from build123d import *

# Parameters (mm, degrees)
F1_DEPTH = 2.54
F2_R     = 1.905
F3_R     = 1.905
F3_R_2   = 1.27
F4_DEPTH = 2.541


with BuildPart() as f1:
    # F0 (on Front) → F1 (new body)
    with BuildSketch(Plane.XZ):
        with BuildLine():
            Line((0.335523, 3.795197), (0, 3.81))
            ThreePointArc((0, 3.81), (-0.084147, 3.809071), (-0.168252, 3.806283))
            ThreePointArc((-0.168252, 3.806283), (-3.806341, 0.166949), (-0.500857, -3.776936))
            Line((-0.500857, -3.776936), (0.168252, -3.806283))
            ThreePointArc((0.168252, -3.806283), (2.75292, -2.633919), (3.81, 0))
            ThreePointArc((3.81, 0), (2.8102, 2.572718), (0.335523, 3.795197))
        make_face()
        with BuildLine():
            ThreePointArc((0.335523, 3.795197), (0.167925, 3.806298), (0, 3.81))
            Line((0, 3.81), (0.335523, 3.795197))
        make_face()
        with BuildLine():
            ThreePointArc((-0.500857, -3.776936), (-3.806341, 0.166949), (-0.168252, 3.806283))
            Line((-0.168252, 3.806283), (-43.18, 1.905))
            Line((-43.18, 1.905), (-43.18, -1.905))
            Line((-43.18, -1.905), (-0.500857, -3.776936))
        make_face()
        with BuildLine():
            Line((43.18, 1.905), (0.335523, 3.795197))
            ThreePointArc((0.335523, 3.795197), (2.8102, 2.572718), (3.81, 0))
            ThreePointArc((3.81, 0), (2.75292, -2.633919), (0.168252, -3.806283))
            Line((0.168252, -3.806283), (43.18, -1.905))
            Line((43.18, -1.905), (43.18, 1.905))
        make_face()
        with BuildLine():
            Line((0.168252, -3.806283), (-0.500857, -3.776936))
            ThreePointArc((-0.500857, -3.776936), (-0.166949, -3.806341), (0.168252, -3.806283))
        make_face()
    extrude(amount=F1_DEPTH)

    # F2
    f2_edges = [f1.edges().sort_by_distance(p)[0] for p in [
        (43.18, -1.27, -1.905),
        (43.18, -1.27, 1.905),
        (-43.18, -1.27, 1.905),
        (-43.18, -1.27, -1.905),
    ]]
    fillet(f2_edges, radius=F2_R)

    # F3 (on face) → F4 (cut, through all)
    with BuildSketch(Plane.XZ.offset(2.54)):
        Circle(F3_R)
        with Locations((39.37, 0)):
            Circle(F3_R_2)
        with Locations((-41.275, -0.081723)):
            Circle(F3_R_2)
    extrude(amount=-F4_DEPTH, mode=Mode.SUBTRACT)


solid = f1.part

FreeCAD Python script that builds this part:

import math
import FreeCAD as App
import Part
import Sketcher
from FreeCAD import Vector
Q = App.Units.Quantity


def edges_at(feature, points):
    """Names of the edges that pass closest to the given points."""
    edges = feature.Shape.Edges
    near = lambda p: min(range(len(edges)), key=lambda i: edges[i].distToShape(Part.Vertex(*p))[0])
    return sorted({f"Edge{near(p) + 1}" for p in points})

doc = App.newDocument("Part")
params = doc.addObject("Spreadsheet::Sheet", "Params")
for row, (alias, value) in enumerate([
    ("sketch1_height", "0.15 in"),
    ("pad1_length", "0.1 in"),
    ("fillet_radius", "0.075 in"),
    ("sketch2_diameter", "0.1 in"),
    ("sketch2_diameter2", "0.15 in"),
], start=1):
    params.set(f"A{row}", alias)
    params.set(f"B{row}", "=" + value)
    params.setAlias(f"B{row}", alias)

body = doc.addObject("PartDesign::Body", "Body")

# Sketch on XZ plane
sketch1 = body.newObject("Sketcher::SketchObject", "Sketch")
sketch1.AttachmentSupport = (doc.getObject("XZ_Plane"), [""])
sketch1.MapMode = "FlatFace"
sketch1.addGeometry(Part.ArcOfCircle(Part.Circle(Vector(0, 0, 0), Vector(0, 0, 1), 3.81), math.radians(90), math.radians(92.53)), False)
sketch1.addGeometry(Part.LineSegment(Vector(-0.17, 3.81, 0), Vector(-43.18, 1.91, 0)), False)
sketch1.addGeometry(Part.LineSegment(Vector(-43.18, 1.91, 0), Vector(-43.18, -1.91, 0)), False)
sketch1.addGeometry(Part.LineSegment(Vector(-43.18, -1.91, 0), Vector(-0.5, -3.78, 0)), False)
sketch1.addGeometry(Part.ArcOfCircle(Part.Circle(Vector(0, 0, 0), Vector(0, 0, 1), 3.81), math.radians(-97.55), math.radians(-87.47)), False)
sketch1.addGeometry(Part.LineSegment(Vector(0.17, -3.81, 0), Vector(43.18, -1.91, 0)), False)
sketch1.addGeometry(Part.LineSegment(Vector(43.18, -1.91, 0), Vector(43.18, 1.91, 0)), False)
sketch1.addGeometry(Part.LineSegment(Vector(43.18, 1.91, 0), Vector(0.34, 3.8, 0)), False)
sketch1.addGeometry(Part.ArcOfCircle(Part.Circle(Vector(0, 0, 0), Vector(0, 0, 1), 3.81), math.radians(84.95), math.radians(90)), False)
sketch1.addConstraint(Sketcher.Constraint("Coincident", 0, 2, 1, 1))
sketch1.addConstraint(Sketcher.Constraint("Coincident", 1, 2, 2, 1))
sketch1.addConstraint(Sketcher.Constraint("Coincident", 2, 2, 3, 1))
sketch1.addConstraint(Sketcher.Constraint("Coincident", 3, 2, 4, 1))
sketch1.addConstraint(Sketcher.Constraint("Coincident", 4, 2, 5, 1))
sketch1.addConstraint(Sketcher.Constraint("Coincident", 5, 2, 6, 1))
sketch1.addConstraint(Sketcher.Constraint("Coincident", 6, 2, 7, 1))
sketch1.addConstraint(Sketcher.Constraint("Coincident", 7, 2, 8, 1))
sketch1.addConstraint(Sketcher.Constraint("Coincident", 8, 2, 0, 1))
sketch1.addConstraint(Sketcher.Constraint("Vertical", 2))
sketch1.addConstraint(Sketcher.Constraint("Vertical", 6))
sketch1.addConstraint(Sketcher.Constraint("Symmetric", 0, 2, 4, 2, -1, 1))
sketch1.addConstraint(Sketcher.Constraint("Symmetric", 1, 2, 5, 2, -1, 1))
sketch1.addConstraint(Sketcher.Constraint("PointOnObject", 8, 2, -2))
sketch1.addConstraint(Sketcher.Constraint("Horizontal", 2, 2, 5, 2))
sketch1.addConstraint(Sketcher.Constraint("Horizontal", 1, 2, 6, 2))
sketch1.addConstraint(Sketcher.Constraint("DistanceY", 2, 2, 2, 1, Q("0.15 in")))
sketch1.addConstraint(Sketcher.Constraint("DistanceX", 1, 2, -1, 1, Q("1.7 in")))
sketch1.addConstraint(Sketcher.Constraint("DistanceY", -1, 1, 8, 2, Q("0.15 in")))
sketch1.addConstraint(Sketcher.Constraint("Radius", 4, Q("3.809911 mm")))
sketch1.addConstraint(Sketcher.Constraint("Radius", 0, Q("3.808336 mm")))
sketch1.addConstraint(Sketcher.Constraint("Radius", 8, Q("3.809286 mm")))
sketch1.addConstraint(Sketcher.Constraint("DistanceY", 3, 2, 0, 3, Q("3.7786 mm")))
sketch1.addConstraint(Sketcher.Constraint("Distance", 1, Q("43.053749 mm")))
sketch1.addConstraint(Sketcher.Constraint("DistanceX", 0, 2, 0, 3, Q("0.168218 mm")))
sketch1.addConstraint(Sketcher.Constraint("DistanceY", 4, 3, 0, 2, Q("3.806372 mm")))
sketch1.addConstraint(Sketcher.Constraint("DistanceX", 4, 3, 7, 2, Q("0.33553 mm")))
sketch1.addConstraint(Sketcher.Constraint("DistanceY", 4, 2, 7, 2, Q("7.60148 mm")))
sketch1.setExpression("Constraints[16]", "Params.sketch1_height")
pad1 = body.newObject("PartDesign::Pad", "Pad")
pad1.Profile = sketch1
pad1.setExpression("Length", "Params.pad1_length")
doc.recompute()

fillet = body.newObject("PartDesign::Fillet", "Fillet")
fillet.Base = (pad1, edges_at(pad1, [
    (43.18, -1.27, -1.905),
    (43.18, -1.27, 1.905),
    (-43.18, -1.27, 1.905),
    (-43.18, -1.27, -1.905),
]))
fillet.setExpression("Radius", "Params.fillet_radius")

# Sketch on XZ plane
sketch2 = body.newObject("Sketcher::SketchObject", "Sketch001")
sketch2.AttachmentSupport = (doc.getObject("XZ_Plane"), [""])
sketch2.MapMode = "FlatFace"
sketch2.AttachmentOffset = App.Placement(Vector(0, 0, 0.1 * 25.4), App.Rotation())
sketch2.addGeometry(Part.Circle(Vector(0, 0, 0), Vector(0, 0, 1), 1.9), False)
sketch2.addGeometry(Part.Circle(Vector(39.4, 0, 0), Vector(0, 0, 1), 1.3), False)
sketch2.addGeometry(Part.Circle(Vector(-41.3, -0.1, 0), Vector(0, 0, 1), 1.3), False)
sketch2.addConstraint(Sketcher.Constraint("Coincident", 0, 3, -1, 1))
sketch2.addConstraint(Sketcher.Constraint("Equal", 1, 2))
sketch2.addConstraint(Sketcher.Constraint("PointOnObject", 1, 3, -1))
sketch2.addConstraint(Sketcher.Constraint("Diameter", 1, Q("0.1 in")))
sketch2.addConstraint(Sketcher.Constraint("Diameter", 0, Q("0.15 in")))
sketch2.addConstraint(Sketcher.Constraint("DistanceX", -1, 1, 1, 3, Q("1.55 in")))
sketch2.addConstraint(Sketcher.Constraint("DistanceX", 2, 3, -1, 1, Q("1.625 in")))
sketch2.addConstraint(Sketcher.Constraint("DistanceY", 2, 3, -1, 1, Q("0.081723 mm")))
sketch2.setExpression("Constraints[3]", "Params.sketch2_diameter")
sketch2.setExpression("Constraints[4]", "Params.sketch2_diameter2")
pocket1 = body.newObject("PartDesign::Pocket", "Pocket")
pocket1.Profile = sketch2
pocket1.Type = "ThroughAll"

doc.recompute()
